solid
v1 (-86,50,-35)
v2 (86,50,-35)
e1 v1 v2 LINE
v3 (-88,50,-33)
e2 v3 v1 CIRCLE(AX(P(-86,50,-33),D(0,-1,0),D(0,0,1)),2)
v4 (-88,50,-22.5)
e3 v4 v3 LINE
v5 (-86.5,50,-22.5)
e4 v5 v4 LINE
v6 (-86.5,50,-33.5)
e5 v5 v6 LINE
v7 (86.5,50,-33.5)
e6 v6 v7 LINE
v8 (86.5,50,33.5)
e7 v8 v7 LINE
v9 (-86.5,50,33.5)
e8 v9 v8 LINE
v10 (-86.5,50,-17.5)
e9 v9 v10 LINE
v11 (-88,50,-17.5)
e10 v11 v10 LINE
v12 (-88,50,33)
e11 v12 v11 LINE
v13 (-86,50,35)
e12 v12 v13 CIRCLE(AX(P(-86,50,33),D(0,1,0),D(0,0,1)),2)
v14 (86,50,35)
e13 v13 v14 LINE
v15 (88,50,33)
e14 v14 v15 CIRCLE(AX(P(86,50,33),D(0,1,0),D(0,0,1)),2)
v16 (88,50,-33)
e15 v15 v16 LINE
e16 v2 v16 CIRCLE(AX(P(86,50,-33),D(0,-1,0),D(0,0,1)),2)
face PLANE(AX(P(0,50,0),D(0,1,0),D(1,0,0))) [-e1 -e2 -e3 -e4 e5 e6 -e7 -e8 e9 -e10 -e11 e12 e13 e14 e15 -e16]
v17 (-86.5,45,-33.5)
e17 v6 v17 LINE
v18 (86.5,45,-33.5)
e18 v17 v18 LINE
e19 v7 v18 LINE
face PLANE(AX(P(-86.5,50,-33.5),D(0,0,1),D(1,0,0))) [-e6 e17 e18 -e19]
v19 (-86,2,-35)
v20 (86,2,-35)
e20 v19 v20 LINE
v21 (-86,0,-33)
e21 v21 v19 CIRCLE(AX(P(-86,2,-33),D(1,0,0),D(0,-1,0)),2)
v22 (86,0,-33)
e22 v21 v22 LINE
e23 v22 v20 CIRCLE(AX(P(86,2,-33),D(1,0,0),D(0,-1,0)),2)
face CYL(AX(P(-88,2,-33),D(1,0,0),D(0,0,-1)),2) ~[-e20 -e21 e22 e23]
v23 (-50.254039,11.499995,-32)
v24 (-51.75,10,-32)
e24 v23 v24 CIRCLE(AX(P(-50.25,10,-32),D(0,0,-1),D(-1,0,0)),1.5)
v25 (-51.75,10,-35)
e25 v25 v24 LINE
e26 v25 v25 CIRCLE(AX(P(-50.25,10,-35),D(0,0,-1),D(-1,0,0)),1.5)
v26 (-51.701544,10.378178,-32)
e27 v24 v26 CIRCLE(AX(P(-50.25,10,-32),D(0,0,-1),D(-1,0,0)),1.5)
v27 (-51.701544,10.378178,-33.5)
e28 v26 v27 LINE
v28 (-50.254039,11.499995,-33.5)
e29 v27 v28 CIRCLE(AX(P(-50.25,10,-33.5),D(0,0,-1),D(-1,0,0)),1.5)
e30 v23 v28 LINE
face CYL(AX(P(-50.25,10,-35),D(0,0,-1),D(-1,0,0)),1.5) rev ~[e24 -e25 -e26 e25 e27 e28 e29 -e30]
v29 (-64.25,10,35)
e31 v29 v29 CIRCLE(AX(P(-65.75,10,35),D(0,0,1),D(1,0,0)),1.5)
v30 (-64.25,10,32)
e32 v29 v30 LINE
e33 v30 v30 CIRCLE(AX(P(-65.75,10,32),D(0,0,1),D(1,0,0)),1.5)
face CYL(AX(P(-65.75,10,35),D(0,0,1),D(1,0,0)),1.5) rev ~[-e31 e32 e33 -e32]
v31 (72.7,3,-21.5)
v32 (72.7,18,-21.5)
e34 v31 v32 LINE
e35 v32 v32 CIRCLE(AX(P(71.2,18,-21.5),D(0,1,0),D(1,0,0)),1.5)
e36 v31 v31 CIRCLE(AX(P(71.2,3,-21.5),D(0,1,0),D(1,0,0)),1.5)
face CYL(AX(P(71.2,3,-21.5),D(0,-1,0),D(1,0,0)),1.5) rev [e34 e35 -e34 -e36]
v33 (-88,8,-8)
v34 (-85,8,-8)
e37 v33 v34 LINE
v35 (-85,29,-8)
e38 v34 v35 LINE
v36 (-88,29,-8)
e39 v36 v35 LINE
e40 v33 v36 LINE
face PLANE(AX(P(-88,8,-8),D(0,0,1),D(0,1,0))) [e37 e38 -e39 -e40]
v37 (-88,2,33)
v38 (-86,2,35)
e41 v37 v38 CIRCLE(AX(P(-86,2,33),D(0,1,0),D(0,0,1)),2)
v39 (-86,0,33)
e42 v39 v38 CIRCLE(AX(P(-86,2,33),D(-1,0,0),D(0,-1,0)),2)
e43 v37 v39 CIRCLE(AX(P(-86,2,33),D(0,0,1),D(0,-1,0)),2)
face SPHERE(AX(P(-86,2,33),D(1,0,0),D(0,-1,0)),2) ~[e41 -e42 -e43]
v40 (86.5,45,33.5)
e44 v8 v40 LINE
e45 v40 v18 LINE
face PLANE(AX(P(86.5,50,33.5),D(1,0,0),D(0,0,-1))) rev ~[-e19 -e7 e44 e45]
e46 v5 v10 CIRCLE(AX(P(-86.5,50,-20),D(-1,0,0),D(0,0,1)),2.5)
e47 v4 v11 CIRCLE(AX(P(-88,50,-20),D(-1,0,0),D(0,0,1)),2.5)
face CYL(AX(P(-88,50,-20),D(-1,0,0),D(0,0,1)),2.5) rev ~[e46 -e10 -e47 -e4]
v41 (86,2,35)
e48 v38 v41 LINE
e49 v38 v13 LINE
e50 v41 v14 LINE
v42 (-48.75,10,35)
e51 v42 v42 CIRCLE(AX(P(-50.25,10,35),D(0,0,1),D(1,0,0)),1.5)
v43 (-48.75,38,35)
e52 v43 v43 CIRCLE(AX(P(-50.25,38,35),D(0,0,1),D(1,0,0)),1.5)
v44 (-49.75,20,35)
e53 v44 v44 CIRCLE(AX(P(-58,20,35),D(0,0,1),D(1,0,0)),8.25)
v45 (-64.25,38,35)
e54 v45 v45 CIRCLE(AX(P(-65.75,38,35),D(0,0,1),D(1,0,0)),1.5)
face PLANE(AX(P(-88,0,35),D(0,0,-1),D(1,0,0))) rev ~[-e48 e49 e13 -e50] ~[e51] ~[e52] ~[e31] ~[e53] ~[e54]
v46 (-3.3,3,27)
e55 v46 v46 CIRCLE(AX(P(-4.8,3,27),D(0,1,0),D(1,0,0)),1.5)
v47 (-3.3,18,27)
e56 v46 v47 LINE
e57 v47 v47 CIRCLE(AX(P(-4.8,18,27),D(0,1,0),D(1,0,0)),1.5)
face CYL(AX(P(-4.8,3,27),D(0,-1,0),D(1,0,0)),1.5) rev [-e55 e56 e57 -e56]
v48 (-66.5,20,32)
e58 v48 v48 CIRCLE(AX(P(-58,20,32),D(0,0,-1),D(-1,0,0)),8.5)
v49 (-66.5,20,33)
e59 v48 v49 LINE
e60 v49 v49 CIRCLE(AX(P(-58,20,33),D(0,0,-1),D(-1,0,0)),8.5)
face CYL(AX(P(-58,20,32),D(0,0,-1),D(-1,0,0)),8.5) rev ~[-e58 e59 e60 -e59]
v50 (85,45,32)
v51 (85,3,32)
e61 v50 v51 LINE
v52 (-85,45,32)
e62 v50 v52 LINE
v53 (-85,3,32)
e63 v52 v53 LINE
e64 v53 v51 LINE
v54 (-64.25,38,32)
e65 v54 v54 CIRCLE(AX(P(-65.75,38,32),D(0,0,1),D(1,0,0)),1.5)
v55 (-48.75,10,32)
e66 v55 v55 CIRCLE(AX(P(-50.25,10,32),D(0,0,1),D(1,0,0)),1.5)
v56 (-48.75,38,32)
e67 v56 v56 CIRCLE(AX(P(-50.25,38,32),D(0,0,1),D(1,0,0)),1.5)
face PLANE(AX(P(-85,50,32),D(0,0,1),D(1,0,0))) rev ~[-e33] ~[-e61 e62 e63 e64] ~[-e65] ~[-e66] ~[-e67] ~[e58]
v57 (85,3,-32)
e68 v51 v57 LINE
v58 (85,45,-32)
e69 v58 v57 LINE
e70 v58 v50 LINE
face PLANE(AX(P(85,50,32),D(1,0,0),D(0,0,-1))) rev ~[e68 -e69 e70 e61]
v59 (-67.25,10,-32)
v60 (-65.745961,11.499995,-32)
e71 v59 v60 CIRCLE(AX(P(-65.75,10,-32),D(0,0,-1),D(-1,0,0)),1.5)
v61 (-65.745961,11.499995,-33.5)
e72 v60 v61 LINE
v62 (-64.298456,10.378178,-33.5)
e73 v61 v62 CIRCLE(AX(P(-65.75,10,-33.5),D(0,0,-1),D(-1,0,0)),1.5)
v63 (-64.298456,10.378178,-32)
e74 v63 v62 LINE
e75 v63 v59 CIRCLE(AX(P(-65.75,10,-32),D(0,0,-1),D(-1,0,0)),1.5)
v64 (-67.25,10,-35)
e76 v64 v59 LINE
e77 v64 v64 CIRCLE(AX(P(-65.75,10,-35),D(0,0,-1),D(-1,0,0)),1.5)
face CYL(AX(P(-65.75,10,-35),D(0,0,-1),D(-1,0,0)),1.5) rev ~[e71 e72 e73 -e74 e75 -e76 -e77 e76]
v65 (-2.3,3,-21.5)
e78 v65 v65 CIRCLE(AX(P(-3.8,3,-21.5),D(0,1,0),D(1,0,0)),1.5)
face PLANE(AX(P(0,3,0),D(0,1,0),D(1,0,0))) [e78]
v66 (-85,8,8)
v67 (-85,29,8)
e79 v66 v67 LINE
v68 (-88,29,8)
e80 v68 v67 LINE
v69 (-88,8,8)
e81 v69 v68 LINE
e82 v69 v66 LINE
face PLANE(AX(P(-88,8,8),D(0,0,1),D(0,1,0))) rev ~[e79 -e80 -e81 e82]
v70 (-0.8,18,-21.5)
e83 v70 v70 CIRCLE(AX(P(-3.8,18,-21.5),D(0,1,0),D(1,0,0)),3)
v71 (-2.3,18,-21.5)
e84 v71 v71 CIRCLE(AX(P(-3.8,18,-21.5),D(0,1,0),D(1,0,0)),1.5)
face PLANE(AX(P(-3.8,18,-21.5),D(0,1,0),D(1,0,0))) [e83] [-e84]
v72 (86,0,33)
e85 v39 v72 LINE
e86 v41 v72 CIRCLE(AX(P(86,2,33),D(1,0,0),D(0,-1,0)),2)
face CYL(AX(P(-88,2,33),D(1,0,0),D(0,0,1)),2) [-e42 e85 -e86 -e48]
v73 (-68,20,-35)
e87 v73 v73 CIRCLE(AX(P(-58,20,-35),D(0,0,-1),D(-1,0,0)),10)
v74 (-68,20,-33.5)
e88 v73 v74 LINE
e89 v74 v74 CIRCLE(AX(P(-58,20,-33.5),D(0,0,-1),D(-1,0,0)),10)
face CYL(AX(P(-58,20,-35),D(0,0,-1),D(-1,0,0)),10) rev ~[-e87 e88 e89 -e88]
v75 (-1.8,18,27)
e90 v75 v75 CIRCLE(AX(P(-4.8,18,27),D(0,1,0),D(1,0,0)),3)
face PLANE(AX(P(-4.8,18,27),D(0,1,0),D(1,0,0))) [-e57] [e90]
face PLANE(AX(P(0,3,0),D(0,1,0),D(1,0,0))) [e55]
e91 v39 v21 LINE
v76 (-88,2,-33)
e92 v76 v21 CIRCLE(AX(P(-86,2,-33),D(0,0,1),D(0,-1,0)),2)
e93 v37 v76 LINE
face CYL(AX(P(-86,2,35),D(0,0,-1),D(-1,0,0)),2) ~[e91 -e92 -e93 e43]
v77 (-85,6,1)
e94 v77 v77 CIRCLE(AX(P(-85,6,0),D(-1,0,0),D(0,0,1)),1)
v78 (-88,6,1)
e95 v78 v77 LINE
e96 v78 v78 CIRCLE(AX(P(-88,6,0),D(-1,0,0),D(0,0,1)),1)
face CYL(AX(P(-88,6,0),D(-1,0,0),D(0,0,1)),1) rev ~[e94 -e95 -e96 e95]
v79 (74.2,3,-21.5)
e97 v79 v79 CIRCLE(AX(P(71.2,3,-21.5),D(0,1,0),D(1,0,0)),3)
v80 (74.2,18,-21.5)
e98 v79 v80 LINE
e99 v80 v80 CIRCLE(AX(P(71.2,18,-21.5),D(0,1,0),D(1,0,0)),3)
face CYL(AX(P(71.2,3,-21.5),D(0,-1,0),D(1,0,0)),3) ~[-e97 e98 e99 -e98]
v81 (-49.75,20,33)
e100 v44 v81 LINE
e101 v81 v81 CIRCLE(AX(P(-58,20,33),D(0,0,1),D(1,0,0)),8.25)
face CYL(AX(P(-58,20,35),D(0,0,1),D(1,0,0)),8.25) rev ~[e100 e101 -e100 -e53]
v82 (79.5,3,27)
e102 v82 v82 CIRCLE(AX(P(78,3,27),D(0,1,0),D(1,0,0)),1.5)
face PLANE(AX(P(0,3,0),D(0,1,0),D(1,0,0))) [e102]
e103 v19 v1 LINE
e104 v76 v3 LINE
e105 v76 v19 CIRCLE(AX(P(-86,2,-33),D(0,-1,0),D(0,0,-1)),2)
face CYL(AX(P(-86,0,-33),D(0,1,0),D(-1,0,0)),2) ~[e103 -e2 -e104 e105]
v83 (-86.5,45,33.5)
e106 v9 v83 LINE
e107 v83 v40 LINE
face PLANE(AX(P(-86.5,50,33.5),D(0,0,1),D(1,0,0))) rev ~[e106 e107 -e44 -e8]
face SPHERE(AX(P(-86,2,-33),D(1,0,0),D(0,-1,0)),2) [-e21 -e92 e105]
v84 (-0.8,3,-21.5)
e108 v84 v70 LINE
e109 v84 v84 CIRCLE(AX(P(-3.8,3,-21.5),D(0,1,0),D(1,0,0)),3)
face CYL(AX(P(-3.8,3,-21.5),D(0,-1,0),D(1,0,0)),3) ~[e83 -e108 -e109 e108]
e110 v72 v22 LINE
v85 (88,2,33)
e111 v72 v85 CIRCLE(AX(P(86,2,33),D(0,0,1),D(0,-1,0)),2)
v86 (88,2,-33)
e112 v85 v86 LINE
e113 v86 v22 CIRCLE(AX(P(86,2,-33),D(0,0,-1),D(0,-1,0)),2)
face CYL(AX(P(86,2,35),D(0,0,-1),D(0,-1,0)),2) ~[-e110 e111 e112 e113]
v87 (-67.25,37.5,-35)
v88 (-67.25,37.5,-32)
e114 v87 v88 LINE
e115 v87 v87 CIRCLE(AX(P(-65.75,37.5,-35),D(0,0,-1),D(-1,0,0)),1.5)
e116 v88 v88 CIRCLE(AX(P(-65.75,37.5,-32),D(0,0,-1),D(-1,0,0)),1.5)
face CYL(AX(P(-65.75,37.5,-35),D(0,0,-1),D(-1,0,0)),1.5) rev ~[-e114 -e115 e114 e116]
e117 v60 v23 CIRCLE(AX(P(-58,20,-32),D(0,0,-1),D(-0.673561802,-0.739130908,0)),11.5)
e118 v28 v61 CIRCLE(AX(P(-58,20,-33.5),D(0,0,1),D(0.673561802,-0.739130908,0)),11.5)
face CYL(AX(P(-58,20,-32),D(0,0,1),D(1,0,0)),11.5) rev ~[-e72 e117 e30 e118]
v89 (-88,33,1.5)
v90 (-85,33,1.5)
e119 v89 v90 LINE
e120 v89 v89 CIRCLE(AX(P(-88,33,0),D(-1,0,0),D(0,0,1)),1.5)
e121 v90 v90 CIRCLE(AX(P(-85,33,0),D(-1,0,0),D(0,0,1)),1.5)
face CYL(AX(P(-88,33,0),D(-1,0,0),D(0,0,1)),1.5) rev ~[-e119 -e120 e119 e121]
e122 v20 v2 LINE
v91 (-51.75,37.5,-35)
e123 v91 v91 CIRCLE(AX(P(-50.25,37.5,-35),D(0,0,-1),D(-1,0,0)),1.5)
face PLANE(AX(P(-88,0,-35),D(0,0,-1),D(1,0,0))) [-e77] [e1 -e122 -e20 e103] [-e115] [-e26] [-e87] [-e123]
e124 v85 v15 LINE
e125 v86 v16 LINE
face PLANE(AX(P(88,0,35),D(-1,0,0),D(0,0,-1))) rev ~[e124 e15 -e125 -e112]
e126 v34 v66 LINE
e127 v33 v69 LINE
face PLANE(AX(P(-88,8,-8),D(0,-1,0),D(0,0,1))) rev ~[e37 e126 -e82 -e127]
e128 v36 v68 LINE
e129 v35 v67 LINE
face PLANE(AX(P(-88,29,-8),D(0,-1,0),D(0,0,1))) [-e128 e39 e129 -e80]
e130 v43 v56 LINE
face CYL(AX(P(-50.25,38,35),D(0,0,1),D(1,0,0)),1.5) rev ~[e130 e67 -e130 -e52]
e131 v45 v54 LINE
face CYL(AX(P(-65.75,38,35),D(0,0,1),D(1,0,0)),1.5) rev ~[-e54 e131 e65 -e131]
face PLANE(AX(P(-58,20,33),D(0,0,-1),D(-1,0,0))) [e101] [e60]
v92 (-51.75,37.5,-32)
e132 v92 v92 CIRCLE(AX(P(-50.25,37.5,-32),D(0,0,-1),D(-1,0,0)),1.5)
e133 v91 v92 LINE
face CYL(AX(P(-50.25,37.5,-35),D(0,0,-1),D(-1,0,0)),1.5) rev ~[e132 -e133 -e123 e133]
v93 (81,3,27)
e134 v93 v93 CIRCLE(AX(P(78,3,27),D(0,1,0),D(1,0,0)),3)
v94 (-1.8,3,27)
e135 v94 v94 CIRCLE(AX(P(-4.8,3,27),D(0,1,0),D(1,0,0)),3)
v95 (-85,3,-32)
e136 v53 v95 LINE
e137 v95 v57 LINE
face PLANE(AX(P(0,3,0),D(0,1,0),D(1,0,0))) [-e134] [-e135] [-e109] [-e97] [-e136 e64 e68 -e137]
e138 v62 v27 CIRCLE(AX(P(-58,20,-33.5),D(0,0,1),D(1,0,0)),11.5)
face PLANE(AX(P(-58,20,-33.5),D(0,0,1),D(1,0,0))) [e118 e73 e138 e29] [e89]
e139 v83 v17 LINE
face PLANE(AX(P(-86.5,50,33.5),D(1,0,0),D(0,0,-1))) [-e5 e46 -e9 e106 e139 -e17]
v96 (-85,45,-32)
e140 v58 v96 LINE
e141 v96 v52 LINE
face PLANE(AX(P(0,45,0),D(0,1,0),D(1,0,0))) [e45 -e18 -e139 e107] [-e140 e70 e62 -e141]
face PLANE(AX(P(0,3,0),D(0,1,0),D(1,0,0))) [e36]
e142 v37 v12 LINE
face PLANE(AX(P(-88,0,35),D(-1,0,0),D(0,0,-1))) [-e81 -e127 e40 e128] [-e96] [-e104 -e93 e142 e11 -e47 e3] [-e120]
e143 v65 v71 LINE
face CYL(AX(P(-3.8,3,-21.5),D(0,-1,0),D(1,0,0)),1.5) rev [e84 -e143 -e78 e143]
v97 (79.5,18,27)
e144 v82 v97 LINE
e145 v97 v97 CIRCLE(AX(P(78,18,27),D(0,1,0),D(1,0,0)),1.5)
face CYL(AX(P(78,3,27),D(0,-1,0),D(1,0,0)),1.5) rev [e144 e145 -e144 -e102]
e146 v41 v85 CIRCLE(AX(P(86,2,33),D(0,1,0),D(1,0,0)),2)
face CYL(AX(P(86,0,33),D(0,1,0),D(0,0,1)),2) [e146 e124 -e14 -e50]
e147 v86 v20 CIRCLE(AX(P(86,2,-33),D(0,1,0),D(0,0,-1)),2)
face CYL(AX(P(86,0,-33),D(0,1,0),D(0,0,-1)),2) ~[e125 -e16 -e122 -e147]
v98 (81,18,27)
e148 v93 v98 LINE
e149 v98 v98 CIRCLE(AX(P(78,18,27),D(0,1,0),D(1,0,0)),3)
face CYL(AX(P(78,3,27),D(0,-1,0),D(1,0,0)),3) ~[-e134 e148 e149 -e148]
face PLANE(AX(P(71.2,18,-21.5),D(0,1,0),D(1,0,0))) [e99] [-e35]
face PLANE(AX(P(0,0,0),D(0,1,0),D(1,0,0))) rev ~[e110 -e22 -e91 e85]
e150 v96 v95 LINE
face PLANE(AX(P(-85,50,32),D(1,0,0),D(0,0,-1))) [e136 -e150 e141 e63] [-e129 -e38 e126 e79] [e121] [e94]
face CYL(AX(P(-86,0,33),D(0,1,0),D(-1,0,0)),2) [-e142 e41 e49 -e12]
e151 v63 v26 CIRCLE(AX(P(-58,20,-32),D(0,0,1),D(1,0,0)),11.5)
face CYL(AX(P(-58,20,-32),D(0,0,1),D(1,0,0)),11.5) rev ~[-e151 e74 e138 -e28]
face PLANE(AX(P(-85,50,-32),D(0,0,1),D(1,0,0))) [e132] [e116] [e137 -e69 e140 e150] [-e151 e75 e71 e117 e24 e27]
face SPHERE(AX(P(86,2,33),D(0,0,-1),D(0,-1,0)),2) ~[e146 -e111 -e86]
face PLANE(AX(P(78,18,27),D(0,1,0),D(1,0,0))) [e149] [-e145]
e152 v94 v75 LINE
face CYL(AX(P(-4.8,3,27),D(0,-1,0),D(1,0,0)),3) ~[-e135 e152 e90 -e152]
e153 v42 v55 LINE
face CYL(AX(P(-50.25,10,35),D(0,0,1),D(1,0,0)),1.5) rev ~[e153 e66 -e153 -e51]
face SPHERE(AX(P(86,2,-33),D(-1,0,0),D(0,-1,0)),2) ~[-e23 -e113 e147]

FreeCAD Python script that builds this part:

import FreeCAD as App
import Part
import Sketcher

V = App.Vector
Q = App.Units.Quantity


def edges_at(feature, points):
    """Names of the edges that pass closest to the given points."""
    edges = feature.Shape.Edges
    near = lambda p: min(range(len(edges)), key=lambda i: edges[i].distToShape(Part.Vertex(*p))[0])
    return sorted({f"Edge{near(p) + 1}" for p in points})

doc = App.newDocument("Part")
body = doc.addObject("PartDesign::Body", "Body")

sketch1 = doc.addObject("Sketcher::SketchObject", "Sketch")
body.addObject(sketch1)
sketch1.AttachmentSupport = (doc.XZ_Plane, [""])
sketch1.MapMode = "FlatFace"
sketch1.addGeometry(Part.LineSegment(V(-88, -35, 0), V(-88, 35, 0)), False)
sketch1.addGeometry(Part.LineSegment(V(-88, 35, 0), V(88, 35, 0)), False)
sketch1.addGeometry(Part.LineSegment(V(88, 35, 0), V(88, -35, 0)), False)
sketch1.addGeometry(Part.LineSegment(V(88, -35, 0), V(-88, -35, 0)), False)
sketch1.addConstraint(Sketcher.Constraint("Coincident", 0, 2, 1, 1))
sketch1.addConstraint(Sketcher.Constraint("Coincident", 1, 2, 2, 1))
sketch1.addConstraint(Sketcher.Constraint("Coincident", 2, 2, 3, 1))
sketch1.addConstraint(Sketcher.Constraint("Coincident", 3, 2, 0, 1))
sketch1.addConstraint(Sketcher.Constraint("Vertical", 0))
sketch1.addConstraint(Sketcher.Constraint("Horizontal", 1))
sketch1.addConstraint(Sketcher.Constraint("Vertical", 2))
sketch1.addConstraint(Sketcher.Constraint("Horizontal", 3))
sketch1.addConstraint(Sketcher.Constraint("Symmetric", 0, 2, 2, 2, -1, 1))
sketch1.addConstraint(Sketcher.Constraint("DistanceX", 1, 1, 1, 2, Q("176 mm")))
sketch1.addConstraint(Sketcher.Constraint("DistanceY", 0, 1, 0, 2, Q("70 mm")))
pad1 = doc.addObject("PartDesign::Pad", "Pad")
body.addObject(pad1)
pad1.Profile = sketch1
pad1.Length = 50
pad1.Reversed = True

sketch2 = doc.addObject("Sketcher::SketchObject", "Sketch001")
body.addObject(sketch2)
sketch2.AttachmentSupport = (doc.XZ_Plane, [""])
sketch2.MapMode = "FlatFace"
sketch2.AttachmentOffset = App.Placement(V(0, 0, -50), App.Rotation())
sketch2.addGeometry(Part.LineSegment(V(-85, -32, 0), V(-85, 32, 0)), False)
sketch2.addGeometry(Part.LineSegment(V(-85, 32, 0), V(85, 32, 0)), False)
sketch2.addGeometry(Part.LineSegment(V(85, 32, 0), V(85, -32, 0)), False)
sketch2.addGeometry(Part.LineSegment(V(85, -32, 0), V(-85, -32, 0)), False)
sketch2.addConstraint(Sketcher.Constraint("Coincident", 0, 2, 1, 1))
sketch2.addConstraint(Sketcher.Constraint("Coincident", 1, 2, 2, 1))
sketch2.addConstraint(Sketcher.Constraint("Coincident", 2, 2, 3, 1))
sketch2.addConstraint(Sketcher.Constraint("Coincident", 3, 2, 0, 1))
sketch2.addConstraint(Sketcher.Constraint("Vertical", 0))
sketch2.addConstraint(Sketcher.Constraint("Horizontal", 1))
sketch2.addConstraint(Sketcher.Constraint("Vertical", 2))
sketch2.addConstraint(Sketcher.Constraint("Horizontal", 3))
sketch2.addConstraint(Sketcher.Constraint("Symmetric", 0, 2, 2, 2, -1, 1))
sketch2.addConstraint(Sketcher.Constraint("DistanceX", 1, 1, 1, 2, Q("170 mm")))
sketch2.addConstraint(Sketcher.Constraint("DistanceY", 0, 1, 0, 2, Q("64 mm")))
pocket1 = doc.addObject("PartDesign::Pocket", "Pocket")
body.addObject(pocket1)
pocket1.Profile = sketch2
pocket1.Length = 47
pocket1.Reversed = True

sketch3 = doc.addObject("Sketcher::SketchObject", "Sketch002")
body.addObject(sketch3)
sketch3.AttachmentSupport = (doc.XZ_Plane, [""])
sketch3.MapMode = "FlatFace"
sketch3.AttachmentOffset = App.Placement(V(0, 0, -50), App.Rotation())
sketch3.addGeometry(Part.LineSegment(V(-86, -34, 0), V(-86, 34, 0)), False)
sketch3.addGeometry(Part.LineSegment(V(-86, 34, 0), V(86, 34, 0)), False)
sketch3.addGeometry(Part.LineSegment(V(86, 34, 0), V(86, -34, 0)), False)
sketch3.addGeometry(Part.LineSegment(V(86, -34, 0), V(-86, -34, 0)), False)
sketch3.addConstraint(Sketcher.Constraint("Coincident", 0, 2, 1, 1))
sketch3.addConstraint(Sketcher.Constraint("Coincident", 1, 2, 2, 1))
sketch3.addConstraint(Sketcher.Constraint("Coincident", 2, 2, 3, 1))
sketch3.addConstraint(Sketcher.Constraint("Coincident", 3, 2, 0, 1))
sketch3.addConstraint(Sketcher.Constraint("Vertical", 0))
sketch3.addConstraint(Sketcher.Constraint("Horizontal", 1))
sketch3.addConstraint(Sketcher.Constraint("Vertical", 2))
sketch3.addConstraint(Sketcher.Constraint("Horizontal", 3))
sketch3.addConstraint(Sketcher.Constraint("Symmetric", 0, 2, 2, 2, -1, 1))
sketch3.addConstraint(Sketcher.Constraint("DistanceX", 1, 1, 1, 2, Q("173 mm")))
sketch3.addConstraint(Sketcher.Constraint("DistanceY", 0, 1, 0, 2, Q("67 mm")))
pocket2 = doc.addObject("PartDesign::Pocket", "Pocket001")
body.addObject(pocket2)
pocket2.Profile = sketch3
pocket2.Length = 5
pocket2.Reversed = True

sketch4 = doc.addObject("Sketcher::SketchObject", "Sketch003")
body.addObject(sketch4)
sketch4.AttachmentSupport = (doc.XZ_Plane, [""])
sketch4.MapMode = "FlatFace"
sketch4.AttachmentOffset = App.Placement(V(0, 0, -3), App.Rotation())
sketch4.addGeometry(Part.Circle(V(-4.8, 27, 0), V(0, 0, 1), 3), False)
sketch4.addGeometry(Part.Circle(V(-4.8, 27, 0), V(0, 0, 1), 1.5), False)
sketch4.addGeometry(Part.Circle(V(78, 27, 0), V(0, 0, 1), 3), False)
sketch4.addGeometry(Part.Circle(V(78, 27, 0), V(0, 0, 1), 1.5), False)
sketch4.addGeometry(Part.Circle(V(71.2, -21.5, 0), V(0, 0, 1), 3), False)
sketch4.addGeometry(Part.Circle(V(71.2, -21.5, 0), V(0, 0, 1), 1.5), False)
sketch4.addGeometry(Part.Circle(V(-3.8, -21.5, 0), V(0, 0, 1), 3), False)
sketch4.addGeometry(Part.Circle(V(-3.8, -21.5, 0), V(0, 0, 1), 1.5), False)
sketch4.addConstraint(Sketcher.Constraint("Coincident", 1, 3, 0, 3))
sketch4.addConstraint(Sketcher.Constraint("Coincident", 3, 3, 2, 3))
sketch4.addConstraint(Sketcher.Constraint("Coincident", 5, 3, 4, 3))
sketch4.addConstraint(Sketcher.Constraint("Coincident", 7, 3, 6, 3))
sketch4.addConstraint(Sketcher.Constraint("Equal", 0, 2))
sketch4.addConstraint(Sketcher.Constraint("Equal", 1, 3))
sketch4.addConstraint(Sketcher.Constraint("Equal", 2, 4))
sketch4.addConstraint(Sketcher.Constraint("Equal", 3, 5))
sketch4.addConstraint(Sketcher.Constraint("Equal", 4, 6))
sketch4.addConstraint(Sketcher.Constraint("Equal", 5, 7))
sketch4.addConstraint(Sketcher.Constraint("Horizontal", 1, 3, 2, 3))
sketch4.addConstraint(Sketcher.Constraint("Horizontal", 5, 3, 6, 3))
sketch4.addConstraint(Sketcher.Constraint("Diameter", 0, Q("6 mm")))
sketch4.addConstraint(Sketcher.Constraint("Diameter", 1, Q("3 mm")))
sketch4.addConstraint(Sketcher.Constraint("DistanceY", -1, 1, 0, 3, Q("27 mm")))
sketch4.addConstraint(Sketcher.Constraint("DistanceX", -1, 1, 2, 3, Q("78 mm")))
sketch4.addConstraint(Sketcher.Constraint("DistanceX", 0, 3, 4, 3, Q("76 mm")))
sketch4.addConstraint(Sketcher.Constraint("DistanceX", 0, 3, 6, 3, Q("1 mm")))
sketch4.addConstraint(Sketcher.Constraint("DistanceX", 0, 3, -1, 1, Q("4.8 mm")))
sketch4.addConstraint(Sketcher.Constraint("DistanceY", 4, 3, -1, 1, Q("21.5 mm")))
pad2 = doc.addObject("PartDesign::Pad", "Pad001")
body.addObject(pad2)
pad2.Profile = sketch4
pad2.Length = 15
pad2.Reversed = True

sketch5 = doc.addObject("Sketcher::SketchObject", "Sketch004")
body.addObject(sketch5)
sketch5.AttachmentSupport = (doc.XY_Plane, [""])
sketch5.MapMode = "FlatFace"
sketch5.AttachmentOffset = App.Placement(V(0, 0, -35), App.Rotation())
sketch5.addGeometry(Part.Circle(V(-58, 20, 0), V(0, 0, 1), 10), False)
sketch5.addConstraint(Sketcher.Constraint("Diameter", 0, Q("20 mm")))
sketch5.addConstraint(Sketcher.Constraint("DistanceX", 0, 3, -1, 1, Q("58 mm")))
sketch5.addConstraint(Sketcher.Constraint("DistanceY", -1, 1, 0, 3, Q("20 mm")))
pocket3 = doc.addObject("PartDesign::Pocket", "Pocket002")
body.addObject(pocket3)
pocket3.Profile = sketch5
pocket3.Type = "UpToFirst"
pocket3.Reversed = True

sketch6 = doc.addObject("Sketcher::SketchObject", "Sketch005")
body.addObject(sketch6)
sketch6.AttachmentSupport = (doc.XY_Plane, [""])
sketch6.MapMode = "FlatFace"
sketch6.AttachmentOffset = App.Placement(V(0, 0, -35), App.Rotation())
sketch6.addGeometry(Part.Circle(V(-65.8, 37.5, 0), V(0, 0, 1), 1.5), False)
sketch6.addConstraint(Sketcher.Constraint("Diameter", 0, Q("3 mm")))
sketch6.addConstraint(Sketcher.Constraint("DistanceY", -1, 1, 0, 3, Q("37.5 mm")))
sketch6.addConstraint(Sketcher.Constraint("DistanceX", 0, 3, -1, 1, Q("65.75 mm")))
pocket4 = doc.addObject("PartDesign::Pocket", "Pocket003")
body.addObject(pocket4)
pocket4.Profile = sketch6
pocket4.Type = "UpToFirst"
pocket4.Reversed = True

sketch7 = doc.addObject("Sketcher::SketchObject", "Sketch006")
body.addObject(sketch7)
sketch7.AttachmentSupport = (doc.XY_Plane, [""])
sketch7.MapMode = "FlatFace"
sketch7.AttachmentOffset = App.Placement(V(0, 0, -35), App.Rotation())
sketch7.addGeometry(Part.Circle(V(-50.2, 37.5, 0), V(0, 0, 1), 1.5), False)
sketch7.addConstraint(Sketcher.Constraint("Diameter", 0, Q("3 mm")))
sketch7.addConstraint(Sketcher.Constraint("DistanceY", -1, 1, 0, 3, Q("37.5 mm")))
sketch7.addConstraint(Sketcher.Constraint("DistanceX", 0, 3, -1, 1, Q("50.25 mm")))
pocket5 = doc.addObject("PartDesign::Pocket", "Pocket004")
body.addObject(pocket5)
pocket5.Profile = sketch7
pocket5.Type = "UpToFirst"
pocket5.Reversed = True

sketch8 = doc.addObject("Sketcher::SketchObject", "Sketch007")
body.addObject(sketch8)
sketch8.AttachmentSupport = (doc.XY_Plane, [""])
sketch8.MapMode = "FlatFace"
sketch8.AttachmentOffset = App.Placement(V(0, 0, -35), App.Rotation())
sketch8.addGeometry(Part.Circle(V(-50.2, 10, 0), V(0, 0, 1), 1.5), False)
sketch8.addConstraint(Sketcher.Constraint("Diameter", 0, Q("3 mm")))
sketch8.addConstraint(Sketcher.Constraint("DistanceY", -1, 1, 0, 3, Q("10 mm")))
sketch8.addConstraint(Sketcher.Constraint("DistanceX", 0, 3, -1, 1, Q("50.25 mm")))
pocket6 = doc.addObject("PartDesign::Pocket", "Pocket005")
body.addObject(pocket6)
pocket6.Profile = sketch8
pocket6.Type = "UpToFirst"
pocket6.Reversed = True

sketch9 = doc.addObject("Sketcher::SketchObject", "Sketch008")
body.addObject(sketch9)
sketch9.AttachmentSupport = (doc.XY_Plane, [""])
sketch9.MapMode = "FlatFace"
sketch9.AttachmentOffset = App.Placement(V(0, 0, -35), App.Rotation())
sketch9.addGeometry(Part.Circle(V(-65.8, 10, 0), V(0, 0, 1), 1.5), False)
sketch9.addConstraint(Sketcher.Constraint("Diameter", 0, Q("3 mm")))
sketch9.addConstraint(Sketcher.Constraint("DistanceY", -1, 1, 0, 3, Q("10 mm")))
sketch9.addConstraint(Sketcher.Constraint("DistanceX", 0, 3, -1, 1, Q("65.75 mm")))
pocket7 = doc.addObject("PartDesign::Pocket", "Pocket006")
body.addObject(pocket7)
pocket7.Profile = sketch9
pocket7.Type = "UpToFirst"
pocket7.Reversed = True

sketch10 = doc.addObject("Sketcher::SketchObject", "Sketch009")
body.addObject(sketch10)
sketch10.AttachmentSupport = (doc.XY_Plane, [""])
sketch10.MapMode = "FlatFace"
sketch10.AttachmentOffset = App.Placement(V(0, 0, -32), App.Rotation())
sketch10.addGeometry(Part.Circle(V(-58, 20, 0), V(0, 0, 1), 12), False)
sketch10.addConstraint(Sketcher.Constraint("Diameter", 0, Q("23 mm")))
sketch10.addConstraint(Sketcher.Constraint("DistanceX", 0, 3, -1, 1, Q("58 mm")))
sketch10.addConstraint(Sketcher.Constraint("DistanceY", -1, 1, 0, 3, Q("20 mm")))
pocket8 = doc.addObject("PartDesign::Pocket", "Pocket007")
body.addObject(pocket8)
pocket8.Profile = sketch10
pocket8.Length = 1.5

sketch11 = doc.addObject("Sketcher::SketchObject", "Sketch010")
body.addObject(sketch11)
sketch11.AttachmentSupport = (doc.XY_Plane, [""])
sketch11.MapMode = "FlatFace"
sketch11.AttachmentOffset = App.Placement(V(0, 0, 35), App.Rotation())
sketch11.addGeometry(Part.Circle(V(-58, 20, 0), V(0, 0, 1), 8), False)
sketch11.addConstraint(Sketcher.Constraint("Diameter", 0, Q("16.5 mm")))
sketch11.addConstraint(Sketcher.Constraint("DistanceX", 0, 3, -1, 1, Q("58 mm")))
sketch11.addConstraint(Sketcher.Constraint("DistanceY", -1, 1, 0, 3, Q("20 mm")))
pocket9 = doc.addObject("PartDesign::Pocket", "Pocket008")
body.addObject(pocket9)
pocket9.Profile = sketch11
pocket9.Type = "UpToFirst"

sketch12 = doc.addObject("Sketcher::SketchObject", "Sketch011")
body.addObject(sketch12)
sketch12.AttachmentSupport = (doc.XY_Plane, [""])
sketch12.MapMode = "FlatFace"
sketch12.AttachmentOffset = App.Placement(V(0, 0, 35), App.Rotation())
sketch12.addGeometry(Part.Circle(V(-65.8, 38, 0), V(0, 0, 1), 1.5), False)
sketch12.addConstraint(Sketcher.Constraint("Diameter", 0, Q("3 mm")))
sketch12.addConstraint(Sketcher.Constraint("DistanceY", -1, 1, 0, 3, Q("38 mm")))
sketch12.addConstraint(Sketcher.Constraint("DistanceX", 0, 3, -1, 1, Q("65.75 mm")))
pocket10 = doc.addObject("PartDesign::Pocket", "Pocket009")
body.addObject(pocket10)
pocket10.Profile = sketch12
pocket10.Type = "UpToFirst"

sketch13 = doc.addObject("Sketcher::SketchObject", "Sketch012")
body.addObject(sketch13)
sketch13.AttachmentSupport = (doc.XY_Plane, [""])
sketch13.MapMode = "FlatFace"
sketch13.AttachmentOffset = App.Placement(V(0, 0, 35), App.Rotation())
sketch13.addGeometry(Part.Circle(V(-50.2, 38, 0), V(0, 0, 1), 1.5), False)
sketch13.addConstraint(Sketcher.Constraint("Diameter", 0, Q("3 mm")))
sketch13.addConstraint(Sketcher.Constraint("DistanceY", -1, 1, 0, 3, Q("38 mm")))
sketch13.addConstraint(Sketcher.Constraint("DistanceX", 0, 3, -1, 1, Q("50.25 mm")))
pocket11 = doc.addObject("PartDesign::Pocket", "Pocket010")
body.addObject(pocket11)
pocket11.Profile = sketch13
pocket11.Type = "UpToFirst"

sketch14 = doc.addObject("Sketcher::SketchObject", "Sketch013")
body.addObject(sketch14)
sketch14.AttachmentSupport = (doc.XY_Plane, [""])
sketch14.MapMode = "FlatFace"
sketch14.AttachmentOffset = App.Placement(V(0, 0, 35), App.Rotation())
sketch14.addGeometry(Part.Circle(V(-65.8, 10, 0), V(0, 0, 1), 1.5), False)
sketch14.addConstraint(Sketcher.Constraint("Diameter", 0, Q("3 mm")))
sketch14.addConstraint(Sketcher.Constraint("DistanceY", -1, 1, 0, 3, Q("10 mm")))
sketch14.addConstraint(Sketcher.Constraint("DistanceX", 0, 3, -1, 1, Q("65.75 mm")))
pocket12 = doc.addObject("PartDesign::Pocket", "Pocket011")
body.addObject(pocket12)
pocket12.Profile = sketch14
pocket12.Type = "UpToFirst"

sketch15 = doc.addObject("Sketcher::SketchObject", "Sketch014")
body.addObject(sketch15)
sketch15.AttachmentSupport = (doc.XY_Plane, [""])
sketch15.MapMode = "FlatFace"
sketch15.AttachmentOffset = App.Placement(V(0, 0, 35), App.Rotation())
sketch15.addGeometry(Part.Circle(V(-50.2, 10, 0), V(0, 0, 1), 1.5), False)
sketch15.addConstraint(Sketcher.Constraint("Diameter", 0, Q("3 mm")))
sketch15.addConstraint(Sketcher.Constraint("DistanceY", -1, 1, 0, 3, Q("10 mm")))
sketch15.addConstraint(Sketcher.Constraint("DistanceX", 0, 3, -1, 1, Q("50.25 mm")))
pocket13 = doc.addObject("PartDesign::Pocket", "Pocket012")
body.addObject(pocket13)
pocket13.Profile = sketch15
pocket13.Type = "UpToFirst"

sketch16 = doc.addObject("Sketcher::SketchObject", "Sketch015")
body.addObject(sketch16)
sketch16.AttachmentSupport = (doc.XY_Plane, [""])
sketch16.MapMode = "FlatFace"
sketch16.AttachmentOffset = App.Placement(V(0, 0, 32), App.Rotation())
sketch16.addGeometry(Part.Circle(V(-58, 20, 0), V(0, 0, 1), 8), False)
sketch16.addConstraint(Sketcher.Constraint("Diameter", 0, Q("17 mm")))
sketch16.addConstraint(Sketcher.Constraint("DistanceX", 0, 3, -1, 1, Q("58 mm")))
sketch16.addConstraint(Sketcher.Constraint("DistanceY", -1, 1, 0, 3, Q("20 mm")))
pocket14 = doc.addObject("PartDesign::Pocket", "Pocket013")
body.addObject(pocket14)
pocket14.Profile = sketch16
pocket14.Length = 1
pocket14.Reversed = True
doc.recompute()

fillet = doc.addObject("PartDesign::Fillet", "Fillet")
body.addObject(fillet)
fillet.Base = (pocket14, edges_at(pocket14, [
    (0, 0, -35),
    (88, 0, 0),
    (0, 0, 35),
    (-88, 0, 0),
    (-88, 25, -35),
    (88, 25, -35),
    (88, 25, 35),
    (-88, 25, 35),
]))
fillet.Radius = 2

sketch17 = doc.addObject("Sketcher::SketchObject", "Sketch016")
body.addObject(sketch17)
sketch17.AttachmentSupport = (doc.YZ_Plane, [""])
sketch17.MapMode = "FlatFace"
sketch17.AttachmentOffset = App.Placement(V(0, 0, -88), App.Rotation())
sketch17.addGeometry(Part.Circle(V(33, 0, 0), V(0, 0, 1), 1.5), False)
sketch17.addConstraint(Sketcher.Constraint("PointOnObject", 0, 3, -1))
sketch17.addConstraint(Sketcher.Constraint("Diameter", 0, Q("3 mm")))
sketch17.addConstraint(Sketcher.Constraint("DistanceX", -1, 1, 0, 3, Q("33 mm")))
pocket15 = doc.addObject("PartDesign::Pocket", "Pocket014")
body.addObject(pocket15)
pocket15.Profile = sketch17
pocket15.Type = "UpToFirst"
pocket15.Reversed = True

sketch18 = doc.addObject("Sketcher::SketchObject", "Sketch017")
body.addObject(sketch18)
sketch18.AttachmentSupport = (doc.YZ_Plane, [""])
sketch18.MapMode = "FlatFace"
sketch18.AttachmentOffset = App.Placement(V(0, 0, -88), App.Rotation())
sketch18.addGeometry(Part.Circle(V(6, 0, 0), V(0, 0, 1), 1), False)
sketch18.addConstraint(Sketcher.Constraint("PointOnObject", 0, 3, -1))
sketch18.addConstraint(Sketcher.Constraint("Diameter", 0, Q("2 mm")))
sketch18.addConstraint(Sketcher.Constraint("DistanceX", -1, 1, 0, 3, Q("6 mm")))
pocket16 = doc.addObject("PartDesign::Pocket", "Pocket015")
body.addObject(pocket16)
pocket16.Profile = sketch18
pocket16.Type = "UpToFirst"
pocket16.Reversed = True

sketch19 = doc.addObject("Sketcher::SketchObject", "Sketch018")
body.addObject(sketch19)
sketch19.AttachmentSupport = (doc.YZ_Plane, [""])
sketch19.MapMode = "FlatFace"
sketch19.AttachmentOffset = App.Placement(V(0, 0, -88), App.Rotation())
sketch19.addGeometry(Part.LineSegment(V(29, -8, 0), V(8, -8, 0)), False)
sketch19.addGeometry(Part.LineSegment(V(8, -8, 0), V(8, 8, 0)), False)
sketch19.addGeometry(Part.LineSegment(V(8, 8, 0), V(29, 8, 0)), False)
sketch19.addGeometry(Part.LineSegment(V(29, 8, 0), V(29, -8, 0)), False)
sketch19.addConstraint(Sketcher.Constraint("Coincident", 0, 2, 1, 1))
sketch19.addConstraint(Sketcher.Constraint("Coincident", 1, 2, 2, 1))
sketch19.addConstraint(Sketcher.Constraint("Coincident", 2, 2, 3, 1))
sketch19.addConstraint(Sketcher.Constraint("Coincident", 3, 2, 0, 1))
sketch19.addConstraint(Sketcher.Constraint("Horizontal", 0))
sketch19.addConstraint(Sketcher.Constraint("Vertical", 1))
sketch19.addConstraint(Sketcher.Constraint("Horizontal", 2))
sketch19.addConstraint(Sketcher.Constraint("Vertical", 3))
sketch19.addConstraint(Sketcher.Constraint("DistanceX", 0, 2, 0, 1, Q("21 mm")))
sketch19.addConstraint(Sketcher.Constraint("DistanceY", 1, 1, 1, 2, Q("16 mm")))
sketch19.addConstraint(Sketcher.Constraint("DistanceX", -1, 1, 0, 2, Q("8 mm")))
sketch19.addConstraint(Sketcher.Constraint("DistanceY", 0, 2, -1, 1, Q("8 mm")))
pocket17 = doc.addObject("PartDesign::Pocket", "Pocket016")
body.addObject(pocket17)
pocket17.Profile = sketch19
pocket17.Type = "UpToFirst"
pocket17.Reversed = True

sketch20 = doc.addObject("Sketcher::SketchObject", "Sketch019")
body.addObject(sketch20)
sketch20.AttachmentSupport = (doc.YZ_Plane, [""])
sketch20.MapMode = "FlatFace"
sketch20.AttachmentOffset = App.Placement(V(0, 0, -88), App.Rotation())
sketch20.addGeometry(Part.Circle(V(50, -20, 0), V(0, 0, 1), 2.5), False)
sketch20.addConstraint(Sketcher.Constraint("Diameter", 0, Q("5 mm")))
sketch20.addConstraint(Sketcher.Constraint("DistanceX", -1, 1, 0, 3, Q("50 mm")))
sketch20.addConstraint(Sketcher.Constraint("DistanceY", 0, 3, -1, 1, Q("20 mm")))
pocket18 = doc.addObject("PartDesign::Pocket", "Pocket017")
body.addObject(pocket18)
pocket18.Profile = sketch20
pocket18.Type = "UpToFirst"
pocket18.Reversed = True

doc.recompute()
